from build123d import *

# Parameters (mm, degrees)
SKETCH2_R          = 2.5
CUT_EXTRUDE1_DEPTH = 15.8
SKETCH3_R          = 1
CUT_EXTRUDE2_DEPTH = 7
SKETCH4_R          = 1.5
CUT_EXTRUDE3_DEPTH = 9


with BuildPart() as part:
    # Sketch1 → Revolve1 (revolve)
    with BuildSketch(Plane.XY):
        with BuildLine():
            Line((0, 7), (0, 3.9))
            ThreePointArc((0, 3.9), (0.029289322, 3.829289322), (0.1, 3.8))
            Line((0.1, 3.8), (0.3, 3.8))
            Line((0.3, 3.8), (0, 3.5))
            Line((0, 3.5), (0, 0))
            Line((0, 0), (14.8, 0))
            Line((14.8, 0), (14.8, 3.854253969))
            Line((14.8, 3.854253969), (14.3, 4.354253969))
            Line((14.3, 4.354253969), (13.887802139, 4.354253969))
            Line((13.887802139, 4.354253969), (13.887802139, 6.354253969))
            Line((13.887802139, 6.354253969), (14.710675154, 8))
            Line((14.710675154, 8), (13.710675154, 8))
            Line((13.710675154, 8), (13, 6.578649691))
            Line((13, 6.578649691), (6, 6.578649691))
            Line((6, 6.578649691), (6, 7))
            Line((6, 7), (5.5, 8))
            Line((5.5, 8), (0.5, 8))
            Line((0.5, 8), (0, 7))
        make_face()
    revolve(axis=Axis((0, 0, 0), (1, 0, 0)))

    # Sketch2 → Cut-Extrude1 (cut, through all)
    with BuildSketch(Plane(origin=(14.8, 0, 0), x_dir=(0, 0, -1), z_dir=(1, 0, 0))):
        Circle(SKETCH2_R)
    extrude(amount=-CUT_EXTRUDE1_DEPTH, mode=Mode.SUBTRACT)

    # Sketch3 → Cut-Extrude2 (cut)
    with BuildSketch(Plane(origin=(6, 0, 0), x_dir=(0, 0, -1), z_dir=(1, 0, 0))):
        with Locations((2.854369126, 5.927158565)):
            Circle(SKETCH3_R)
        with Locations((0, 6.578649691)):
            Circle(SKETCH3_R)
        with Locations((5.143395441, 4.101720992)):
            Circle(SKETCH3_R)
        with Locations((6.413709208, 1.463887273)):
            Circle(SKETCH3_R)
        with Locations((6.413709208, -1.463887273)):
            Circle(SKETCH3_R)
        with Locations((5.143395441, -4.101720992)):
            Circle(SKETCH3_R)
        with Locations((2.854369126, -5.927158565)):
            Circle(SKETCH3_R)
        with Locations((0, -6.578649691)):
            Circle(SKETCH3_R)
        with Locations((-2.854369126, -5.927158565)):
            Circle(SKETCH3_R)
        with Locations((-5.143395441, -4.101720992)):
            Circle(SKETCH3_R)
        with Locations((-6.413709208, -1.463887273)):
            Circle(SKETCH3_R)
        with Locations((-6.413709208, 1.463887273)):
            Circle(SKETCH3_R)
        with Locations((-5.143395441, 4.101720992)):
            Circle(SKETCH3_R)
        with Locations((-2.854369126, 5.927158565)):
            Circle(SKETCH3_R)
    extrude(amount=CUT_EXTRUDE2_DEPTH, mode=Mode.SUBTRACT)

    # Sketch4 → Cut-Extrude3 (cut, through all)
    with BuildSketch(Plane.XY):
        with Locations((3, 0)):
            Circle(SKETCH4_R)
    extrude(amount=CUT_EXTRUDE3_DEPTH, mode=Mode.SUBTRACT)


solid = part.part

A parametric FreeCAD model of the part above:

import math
import FreeCAD as App
import Part
import Sketcher
Q = App.Units.Quantity

doc = App.newDocument("Part")
params = doc.addObject("Spreadsheet::Sheet", "Params")
for row, (alias, value) in enumerate([
    ("sketch1_radius", "0.1 mm"),
    ("sketch1_width", "1 mm"),
    ("sketch1_width2", "7 mm"),
    ("sketch1_width3", "5 mm"),
    ("sketch1_height", "2 mm"),
    ("revolution_angle", "360 deg"),
    ("sketch2_diameter", "5 mm"),
    ("sketch3_diameter", "2 mm"),
    ("pocket2_length", "7 mm"),
    ("sketch4_diameter", "3 mm"),
], start=1):
    params.set(f"A{row}", alias)
    params.set(f"B{row}", "=" + value)
    params.setAlias(f"B{row}", alias)

body = doc.addObject("PartDesign::Body", "Body")

# Sketch on XY plane
sketch1 = body.newObject("Sketcher::SketchObject", "Sketch")
sketch1.AttachmentSupport = (doc.getObject("XY_Plane"), [""])
sketch1.MapMode = "FlatFace"
sketch1.addGeometry([
    Part.LineSegment(App.Vector(0, 7, 0), App.Vector(0, 3.9, 0)),  # 0
    Part.ArcOfCircle(Part.Circle(App.Vector(0.1, 3.9, 0), App.Vector(0, 0, 1), 0.1), math.radians(180), math.radians(270)),  # 1
    Part.LineSegment(App.Vector(0.1, 3.8, 0), App.Vector(0.3, 3.8, 0)),  # 2
    Part.LineSegment(App.Vector(0.3, 3.8, 0), App.Vector(0, 3.5, 0)),  # 3
    Part.LineSegment(App.Vector(0, 3.5, 0), App.Vector(0, 0, 0)),  # 4
    Part.LineSegment(App.Vector(0, 0, 0), App.Vector(14.8, 0, 0)),  # 5
    Part.LineSegment(App.Vector(14.8, 0, 0), App.Vector(14.8, 3.854254, 0)),  # 6
    Part.LineSegment(App.Vector(14.8, 3.854254, 0), App.Vector(14.3, 4.354254, 0)),  # 7
    Part.LineSegment(App.Vector(14.3, 4.354254, 0), App.Vector(13.887802, 4.354254, 0)),  # 8
    Part.LineSegment(App.Vector(13.887802, 4.354254, 0), App.Vector(13.887802, 6.354254, 0)),  # 9
    Part.LineSegment(App.Vector(13.887802, 6.354254, 0), App.Vector(14.710675, 8, 0)),  # 10
    Part.LineSegment(App.Vector(14.710675, 8, 0), App.Vector(13.710675, 8, 0)),  # 11
    Part.LineSegment(App.Vector(13.710675, 8, 0), App.Vector(13, 6.57865, 0)),  # 12
    Part.LineSegment(App.Vector(13, 6.57865, 0), App.Vector(6, 6.57865, 0)),  # 13
    Part.LineSegment(App.Vector(6, 6.57865, 0), App.Vector(6, 7, 0)),  # 14
    Part.LineSegment(App.Vector(6, 7, 0), App.Vector(5.5, 8, 0)),  # 15
    Part.LineSegment(App.Vector(5.5, 8, 0), App.Vector(0.5, 8, 0)),  # 16
    Part.LineSegment(App.Vector(0.5, 8, 0), App.Vector(0, 7, 0)),  # 17
], False)
sketch1.addConstraint([
    Sketcher.Constraint("Tangent", 0, 2, 1, 1),
    Sketcher.Constraint("Tangent", 1, 2, 2, 1),
    Sketcher.Constraint("Coincident", 2, 2, 3, 1),
    Sketcher.Constraint("Coincident", 3, 2, 4, 1),
    Sketcher.Constraint("Coincident", 4, 2, 5, 1),
    Sketcher.Constraint("Coincident", 5, 2, 6, 1),
    Sketcher.Constraint("Coincident", 6, 2, 7, 1),
    Sketcher.Constraint("Coincident", 7, 2, 8, 1),
    Sketcher.Constraint("Coincident", 8, 2, 9, 1),
    Sketcher.Constraint("Coincident", 9, 2, 10, 1),
    Sketcher.Constraint("Coincident", 10, 2, 11, 1),
    Sketcher.Constraint("Coincident", 11, 2, 12, 1),
    Sketcher.Constraint("Coincident", 12, 2, 13, 1),
    Sketcher.Constraint("Coincident", 13, 2, 14, 1),
    Sketcher.Constraint("Coincident", 14, 2, 15, 1),
    Sketcher.Constraint("Coincident", 15, 2, 16, 1),
    Sketcher.Constraint("Coincident", 16, 2, 17, 1),
    Sketcher.Constraint("Coincident", 17, 2, 0, 1),
    Sketcher.Constraint("Vertical", 0),
    Sketcher.Constraint("Horizontal", 2),
    Sketcher.Constraint("Vertical", 4),
    Sketcher.Constraint("Horizontal", 5),
    Sketcher.Constraint("Vertical", 6),
    Sketcher.Constraint("Horizontal", 8),
    Sketcher.Constraint("Vertical", 9),
    Sketcher.Constraint("Horizontal", 11),
    Sketcher.Constraint("Horizontal", 13),
    Sketcher.Constraint("Vertical", 14),
    Sketcher.Constraint("Horizontal", 16),
    Sketcher.Constraint("Coincident", 4, 2, -1, 1),
    Sketcher.Constraint("PointOnObject", 0, 2, -2),
    Sketcher.Constraint("Perpendicular", 3, 7),
    Sketcher.Constraint("Parallel", 10, 12),
    Sketcher.Constraint("Parallel", 12, 17),
    Sketcher.Constraint("Horizontal", 11, 2, 15, 2),
    Sketcher.Constraint("Horizontal", 14, 2, 17, 2),
    Sketcher.Constraint("Equal", 15, 17),
    Sketcher.Constraint("Radius", 1, Q("0.1 mm")),
    Sketcher.Constraint("DistanceX", 11, 2, 11, 1, Q("1 mm")),
    Sketcher.Constraint("DistanceX", 13, 2, 13, 1, Q("7 mm")),
    Sketcher.Constraint("DistanceX", 16, 2, 16, 1, Q("5 mm")),
    Sketcher.Constraint("DistanceY", 9, 1, 9, 2, Q("2 mm")),
    Sketcher.Constraint("Angle", 3, Q("-135 deg")),
    Sketcher.Constraint("DistanceX", 2, 1, 2, 2, Q("0.2 mm")),
    Sketcher.Constraint("DistanceX", 5, 1, 5, 2, Q("14.8 mm")),
    Sketcher.Constraint("DistanceY", 0, 2, 0, 1, Q("3.1 mm")),
    Sketcher.Constraint("DistanceY", 4, 2, 4, 1, Q("3.5 mm")),
    Sketcher.Constraint("DistanceY", -1, 1, 10, 2, Q("8 mm")),
    Sketcher.Constraint("DistanceX", -1, 1, 12, 2, Q("13 mm")),
    Sketcher.Constraint("DistanceX", 2, 2, 7, 2, Q("14 mm")),
    Sketcher.Constraint("Distance", 10, Q("1.84 mm")),
    Sketcher.Constraint("DistanceY", 14, 1, 14, 2, Q("0.42135 mm")),
])
sketch1.setExpression("Constraints[37]", "Params.sketch1_radius")
sketch1.setExpression("Constraints[38]", "Params.sketch1_width")
sketch1.setExpression("Constraints[39]", "Params.sketch1_width2")
sketch1.setExpression("Constraints[40]", "Params.sketch1_width3")
sketch1.setExpression("Constraints[41]", "Params.sketch1_height")
revolution = body.newObject("PartDesign::Revolution", "Revolution")
revolution.Profile = sketch1
revolution.ReferenceAxis = (sketch1, ["H_Axis"])
revolution.setExpression("Angle", "Params.revolution_angle")

# Sketch on YZ plane
sketch2 = body.newObject("Sketcher::SketchObject", "Sketch001")
sketch2.AttachmentSupport = (doc.getObject("YZ_Plane"), [""])
sketch2.MapMode = "FlatFace"
sketch2.AttachmentOffset = App.Placement(App.Vector(0, 0, 14.8), App.Rotation())
sketch2.addGeometry(Part.Circle(App.Vector(0, 0, 0), App.Vector(0, 0, 1), 2.5), False)
sketch2.addConstraint([
    Sketcher.Constraint("Coincident", 0, 3, -1, 1),
    Sketcher.Constraint("Diameter", 0, Q("5 mm")),
])
sketch2.setExpression("Constraints[1]", "Params.sketch2_diameter")
pocket1 = body.newObject("PartDesign::Pocket", "Pocket")
pocket1.Profile = sketch2
pocket1.Type = "ThroughAll"

# Sketch on YZ plane
sketch3 = body.newObject("Sketcher::SketchObject", "Sketch002")
sketch3.AttachmentSupport = (doc.getObject("YZ_Plane"), [""])
sketch3.MapMode = "FlatFace"
sketch3.AttachmentOffset = App.Placement(App.Vector(0, 0, 6), App.Rotation())
sketch3.addGeometry([
    Part.Circle(App.Vector(5.927159, -2.854369, 0), App.Vector(0, 0, 1), 1),  # 0
    Part.Circle(App.Vector(6.57865, 0, 0), App.Vector(0, 0, 1), 1),  # 1
    Part.Circle(App.Vector(4.101721, -5.143395, 0), App.Vector(0, 0, 1), 1),  # 2
    Part.Circle(App.Vector(1.463887, -6.413709, 0), App.Vector(0, 0, 1), 1),  # 3
    Part.Circle(App.Vector(-1.463887, -6.413709, 0), App.Vector(0, 0, 1), 1),  # 4
    Part.Circle(App.Vector(-4.101721, -5.143395, 0), App.Vector(0, 0, 1), 1),  # 5
    Part.Circle(App.Vector(-5.927159, -2.854369, 0), App.Vector(0, 0, 1), 1),  # 6
    Part.Circle(App.Vector(-6.57865, 0, 0), App.Vector(0, 0, 1), 1),  # 7
    Part.Circle(App.Vector(-5.927159, 2.854369, 0), App.Vector(0, 0, 1), 1),  # 8
    Part.Circle(App.Vector(-4.101721, 5.143395, 0), App.Vector(0, 0, 1), 1),  # 9
    Part.Circle(App.Vector(-1.463887, 6.413709, 0), App.Vector(0, 0, 1), 1),  # 10
    Part.Circle(App.Vector(1.463887, 6.413709, 0), App.Vector(0, 0, 1), 1),  # 11
    Part.Circle(App.Vector(4.101721, 5.143395, 0), App.Vector(0, 0, 1), 1),  # 12
    Part.Circle(App.Vector(5.927159, 2.854369, 0), App.Vector(0, 0, 1), 1),  # 13
], False)
sketch3.addConstraint([
    Sketcher.Constraint("Equal", 0, 1),
    Sketcher.Constraint("Equal", 1, 2),
    Sketcher.Constraint("Equal", 2, 3),
    Sketcher.Constraint("Equal", 3, 4),
    Sketcher.Constraint("Equal", 4, 5),
    Sketcher.Constraint("Equal", 5, 6),
    Sketcher.Constraint("Equal", 6, 7),
    Sketcher.Constraint("Equal", 7, 8),
    Sketcher.Constraint("Equal", 8, 9),
    Sketcher.Constraint("Equal", 9, 10),
    Sketcher.Constraint("Equal", 10, 11),
    Sketcher.Constraint("Equal", 11, 12),
    Sketcher.Constraint("Equal", 12, 13),
    Sketcher.Constraint("Symmetric", 1, 3, 7, 3, -1, 1),
    Sketcher.Constraint("Symmetric", 0, 3, 8, 3, -1, 1),
    Sketcher.Constraint("Symmetric", 2, 3, 9, 3, -1, 1),
    Sketcher.Constraint("Symmetric", 3, 3, 10, 3, -1, 1),
    Sketcher.Constraint("Symmetric", 4, 3, 11, 3, -1, 1),
    Sketcher.Constraint("Symmetric", 5, 3, 12, 3, -1, 1),
    Sketcher.Constraint("Symmetric", 6, 3, 13, 3, -1, 1),
    Sketcher.Constraint("Symmetric", 3, 3, 4, 3, -2),
    Sketcher.Constraint("Symmetric", 2, 3, 5, 3, -2),
    Sketcher.Constraint("Symmetric", 0, 3, 6, 3, -2),
    Sketcher.Constraint("PointOnObject", 1, 3, -1),
    Sketcher.Constraint("Diameter", 0, Q("2 mm")),
    Sketcher.Constraint("DistanceX", -1, 1, 0, 3, Q("5.927159 mm")),
    Sketcher.Constraint("DistanceY", 0, 3, -1, 1, Q("2.854369 mm")),
    Sketcher.Constraint("DistanceX", -1, 1, 1, 3, Q("6.57865 mm")),
    Sketcher.Constraint("DistanceX", -1, 1, 2, 3, Q("4.101721 mm")),
    Sketcher.Constraint("DistanceY", 3, 3, -1, 1, Q("6.413709 mm")),
    Sketcher.Constraint("DistanceX", 3, 3, 0, 3, Q("4.463271 mm")),
    Sketcher.Constraint("DistanceY", 5, 3, 9, 3, Q("10.286791 mm")),
])
sketch3.setExpression("Constraints[24]", "Params.sketch3_diameter")
pocket2 = body.newObject("PartDesign::Pocket", "Pocket001")
pocket2.Profile = sketch3
pocket2.setExpression("Length", "Params.pocket2_length")
pocket2.Reversed = True

# Sketch on XY plane
sketch4 = body.newObject("Sketcher::SketchObject", "Sketch003")
sketch4.AttachmentSupport = (doc.getObject("XY_Plane"), [""])
sketch4.MapMode = "FlatFace"
sketch4.addGeometry(Part.Circle(App.Vector(3, 0, 0), App.Vector(0, 0, 1), 1.5), False)
sketch4.addConstraint([
    Sketcher.Constraint("PointOnObject", 0, 3, -1),
    Sketcher.Constraint("Diameter", 0, Q("3 mm")),
    Sketcher.Constraint("DistanceX", -1, 1, 0, 3, Q("3 mm")),
])
sketch4.setExpression("Constraints[1]", "Params.sketch4_diameter")
pocket3 = body.newObject("PartDesign::Pocket", "Pocket002")
pocket3.Profile = sketch4
pocket3.Type = "ThroughAll"
pocket3.Reversed = True

doc.recompute()
